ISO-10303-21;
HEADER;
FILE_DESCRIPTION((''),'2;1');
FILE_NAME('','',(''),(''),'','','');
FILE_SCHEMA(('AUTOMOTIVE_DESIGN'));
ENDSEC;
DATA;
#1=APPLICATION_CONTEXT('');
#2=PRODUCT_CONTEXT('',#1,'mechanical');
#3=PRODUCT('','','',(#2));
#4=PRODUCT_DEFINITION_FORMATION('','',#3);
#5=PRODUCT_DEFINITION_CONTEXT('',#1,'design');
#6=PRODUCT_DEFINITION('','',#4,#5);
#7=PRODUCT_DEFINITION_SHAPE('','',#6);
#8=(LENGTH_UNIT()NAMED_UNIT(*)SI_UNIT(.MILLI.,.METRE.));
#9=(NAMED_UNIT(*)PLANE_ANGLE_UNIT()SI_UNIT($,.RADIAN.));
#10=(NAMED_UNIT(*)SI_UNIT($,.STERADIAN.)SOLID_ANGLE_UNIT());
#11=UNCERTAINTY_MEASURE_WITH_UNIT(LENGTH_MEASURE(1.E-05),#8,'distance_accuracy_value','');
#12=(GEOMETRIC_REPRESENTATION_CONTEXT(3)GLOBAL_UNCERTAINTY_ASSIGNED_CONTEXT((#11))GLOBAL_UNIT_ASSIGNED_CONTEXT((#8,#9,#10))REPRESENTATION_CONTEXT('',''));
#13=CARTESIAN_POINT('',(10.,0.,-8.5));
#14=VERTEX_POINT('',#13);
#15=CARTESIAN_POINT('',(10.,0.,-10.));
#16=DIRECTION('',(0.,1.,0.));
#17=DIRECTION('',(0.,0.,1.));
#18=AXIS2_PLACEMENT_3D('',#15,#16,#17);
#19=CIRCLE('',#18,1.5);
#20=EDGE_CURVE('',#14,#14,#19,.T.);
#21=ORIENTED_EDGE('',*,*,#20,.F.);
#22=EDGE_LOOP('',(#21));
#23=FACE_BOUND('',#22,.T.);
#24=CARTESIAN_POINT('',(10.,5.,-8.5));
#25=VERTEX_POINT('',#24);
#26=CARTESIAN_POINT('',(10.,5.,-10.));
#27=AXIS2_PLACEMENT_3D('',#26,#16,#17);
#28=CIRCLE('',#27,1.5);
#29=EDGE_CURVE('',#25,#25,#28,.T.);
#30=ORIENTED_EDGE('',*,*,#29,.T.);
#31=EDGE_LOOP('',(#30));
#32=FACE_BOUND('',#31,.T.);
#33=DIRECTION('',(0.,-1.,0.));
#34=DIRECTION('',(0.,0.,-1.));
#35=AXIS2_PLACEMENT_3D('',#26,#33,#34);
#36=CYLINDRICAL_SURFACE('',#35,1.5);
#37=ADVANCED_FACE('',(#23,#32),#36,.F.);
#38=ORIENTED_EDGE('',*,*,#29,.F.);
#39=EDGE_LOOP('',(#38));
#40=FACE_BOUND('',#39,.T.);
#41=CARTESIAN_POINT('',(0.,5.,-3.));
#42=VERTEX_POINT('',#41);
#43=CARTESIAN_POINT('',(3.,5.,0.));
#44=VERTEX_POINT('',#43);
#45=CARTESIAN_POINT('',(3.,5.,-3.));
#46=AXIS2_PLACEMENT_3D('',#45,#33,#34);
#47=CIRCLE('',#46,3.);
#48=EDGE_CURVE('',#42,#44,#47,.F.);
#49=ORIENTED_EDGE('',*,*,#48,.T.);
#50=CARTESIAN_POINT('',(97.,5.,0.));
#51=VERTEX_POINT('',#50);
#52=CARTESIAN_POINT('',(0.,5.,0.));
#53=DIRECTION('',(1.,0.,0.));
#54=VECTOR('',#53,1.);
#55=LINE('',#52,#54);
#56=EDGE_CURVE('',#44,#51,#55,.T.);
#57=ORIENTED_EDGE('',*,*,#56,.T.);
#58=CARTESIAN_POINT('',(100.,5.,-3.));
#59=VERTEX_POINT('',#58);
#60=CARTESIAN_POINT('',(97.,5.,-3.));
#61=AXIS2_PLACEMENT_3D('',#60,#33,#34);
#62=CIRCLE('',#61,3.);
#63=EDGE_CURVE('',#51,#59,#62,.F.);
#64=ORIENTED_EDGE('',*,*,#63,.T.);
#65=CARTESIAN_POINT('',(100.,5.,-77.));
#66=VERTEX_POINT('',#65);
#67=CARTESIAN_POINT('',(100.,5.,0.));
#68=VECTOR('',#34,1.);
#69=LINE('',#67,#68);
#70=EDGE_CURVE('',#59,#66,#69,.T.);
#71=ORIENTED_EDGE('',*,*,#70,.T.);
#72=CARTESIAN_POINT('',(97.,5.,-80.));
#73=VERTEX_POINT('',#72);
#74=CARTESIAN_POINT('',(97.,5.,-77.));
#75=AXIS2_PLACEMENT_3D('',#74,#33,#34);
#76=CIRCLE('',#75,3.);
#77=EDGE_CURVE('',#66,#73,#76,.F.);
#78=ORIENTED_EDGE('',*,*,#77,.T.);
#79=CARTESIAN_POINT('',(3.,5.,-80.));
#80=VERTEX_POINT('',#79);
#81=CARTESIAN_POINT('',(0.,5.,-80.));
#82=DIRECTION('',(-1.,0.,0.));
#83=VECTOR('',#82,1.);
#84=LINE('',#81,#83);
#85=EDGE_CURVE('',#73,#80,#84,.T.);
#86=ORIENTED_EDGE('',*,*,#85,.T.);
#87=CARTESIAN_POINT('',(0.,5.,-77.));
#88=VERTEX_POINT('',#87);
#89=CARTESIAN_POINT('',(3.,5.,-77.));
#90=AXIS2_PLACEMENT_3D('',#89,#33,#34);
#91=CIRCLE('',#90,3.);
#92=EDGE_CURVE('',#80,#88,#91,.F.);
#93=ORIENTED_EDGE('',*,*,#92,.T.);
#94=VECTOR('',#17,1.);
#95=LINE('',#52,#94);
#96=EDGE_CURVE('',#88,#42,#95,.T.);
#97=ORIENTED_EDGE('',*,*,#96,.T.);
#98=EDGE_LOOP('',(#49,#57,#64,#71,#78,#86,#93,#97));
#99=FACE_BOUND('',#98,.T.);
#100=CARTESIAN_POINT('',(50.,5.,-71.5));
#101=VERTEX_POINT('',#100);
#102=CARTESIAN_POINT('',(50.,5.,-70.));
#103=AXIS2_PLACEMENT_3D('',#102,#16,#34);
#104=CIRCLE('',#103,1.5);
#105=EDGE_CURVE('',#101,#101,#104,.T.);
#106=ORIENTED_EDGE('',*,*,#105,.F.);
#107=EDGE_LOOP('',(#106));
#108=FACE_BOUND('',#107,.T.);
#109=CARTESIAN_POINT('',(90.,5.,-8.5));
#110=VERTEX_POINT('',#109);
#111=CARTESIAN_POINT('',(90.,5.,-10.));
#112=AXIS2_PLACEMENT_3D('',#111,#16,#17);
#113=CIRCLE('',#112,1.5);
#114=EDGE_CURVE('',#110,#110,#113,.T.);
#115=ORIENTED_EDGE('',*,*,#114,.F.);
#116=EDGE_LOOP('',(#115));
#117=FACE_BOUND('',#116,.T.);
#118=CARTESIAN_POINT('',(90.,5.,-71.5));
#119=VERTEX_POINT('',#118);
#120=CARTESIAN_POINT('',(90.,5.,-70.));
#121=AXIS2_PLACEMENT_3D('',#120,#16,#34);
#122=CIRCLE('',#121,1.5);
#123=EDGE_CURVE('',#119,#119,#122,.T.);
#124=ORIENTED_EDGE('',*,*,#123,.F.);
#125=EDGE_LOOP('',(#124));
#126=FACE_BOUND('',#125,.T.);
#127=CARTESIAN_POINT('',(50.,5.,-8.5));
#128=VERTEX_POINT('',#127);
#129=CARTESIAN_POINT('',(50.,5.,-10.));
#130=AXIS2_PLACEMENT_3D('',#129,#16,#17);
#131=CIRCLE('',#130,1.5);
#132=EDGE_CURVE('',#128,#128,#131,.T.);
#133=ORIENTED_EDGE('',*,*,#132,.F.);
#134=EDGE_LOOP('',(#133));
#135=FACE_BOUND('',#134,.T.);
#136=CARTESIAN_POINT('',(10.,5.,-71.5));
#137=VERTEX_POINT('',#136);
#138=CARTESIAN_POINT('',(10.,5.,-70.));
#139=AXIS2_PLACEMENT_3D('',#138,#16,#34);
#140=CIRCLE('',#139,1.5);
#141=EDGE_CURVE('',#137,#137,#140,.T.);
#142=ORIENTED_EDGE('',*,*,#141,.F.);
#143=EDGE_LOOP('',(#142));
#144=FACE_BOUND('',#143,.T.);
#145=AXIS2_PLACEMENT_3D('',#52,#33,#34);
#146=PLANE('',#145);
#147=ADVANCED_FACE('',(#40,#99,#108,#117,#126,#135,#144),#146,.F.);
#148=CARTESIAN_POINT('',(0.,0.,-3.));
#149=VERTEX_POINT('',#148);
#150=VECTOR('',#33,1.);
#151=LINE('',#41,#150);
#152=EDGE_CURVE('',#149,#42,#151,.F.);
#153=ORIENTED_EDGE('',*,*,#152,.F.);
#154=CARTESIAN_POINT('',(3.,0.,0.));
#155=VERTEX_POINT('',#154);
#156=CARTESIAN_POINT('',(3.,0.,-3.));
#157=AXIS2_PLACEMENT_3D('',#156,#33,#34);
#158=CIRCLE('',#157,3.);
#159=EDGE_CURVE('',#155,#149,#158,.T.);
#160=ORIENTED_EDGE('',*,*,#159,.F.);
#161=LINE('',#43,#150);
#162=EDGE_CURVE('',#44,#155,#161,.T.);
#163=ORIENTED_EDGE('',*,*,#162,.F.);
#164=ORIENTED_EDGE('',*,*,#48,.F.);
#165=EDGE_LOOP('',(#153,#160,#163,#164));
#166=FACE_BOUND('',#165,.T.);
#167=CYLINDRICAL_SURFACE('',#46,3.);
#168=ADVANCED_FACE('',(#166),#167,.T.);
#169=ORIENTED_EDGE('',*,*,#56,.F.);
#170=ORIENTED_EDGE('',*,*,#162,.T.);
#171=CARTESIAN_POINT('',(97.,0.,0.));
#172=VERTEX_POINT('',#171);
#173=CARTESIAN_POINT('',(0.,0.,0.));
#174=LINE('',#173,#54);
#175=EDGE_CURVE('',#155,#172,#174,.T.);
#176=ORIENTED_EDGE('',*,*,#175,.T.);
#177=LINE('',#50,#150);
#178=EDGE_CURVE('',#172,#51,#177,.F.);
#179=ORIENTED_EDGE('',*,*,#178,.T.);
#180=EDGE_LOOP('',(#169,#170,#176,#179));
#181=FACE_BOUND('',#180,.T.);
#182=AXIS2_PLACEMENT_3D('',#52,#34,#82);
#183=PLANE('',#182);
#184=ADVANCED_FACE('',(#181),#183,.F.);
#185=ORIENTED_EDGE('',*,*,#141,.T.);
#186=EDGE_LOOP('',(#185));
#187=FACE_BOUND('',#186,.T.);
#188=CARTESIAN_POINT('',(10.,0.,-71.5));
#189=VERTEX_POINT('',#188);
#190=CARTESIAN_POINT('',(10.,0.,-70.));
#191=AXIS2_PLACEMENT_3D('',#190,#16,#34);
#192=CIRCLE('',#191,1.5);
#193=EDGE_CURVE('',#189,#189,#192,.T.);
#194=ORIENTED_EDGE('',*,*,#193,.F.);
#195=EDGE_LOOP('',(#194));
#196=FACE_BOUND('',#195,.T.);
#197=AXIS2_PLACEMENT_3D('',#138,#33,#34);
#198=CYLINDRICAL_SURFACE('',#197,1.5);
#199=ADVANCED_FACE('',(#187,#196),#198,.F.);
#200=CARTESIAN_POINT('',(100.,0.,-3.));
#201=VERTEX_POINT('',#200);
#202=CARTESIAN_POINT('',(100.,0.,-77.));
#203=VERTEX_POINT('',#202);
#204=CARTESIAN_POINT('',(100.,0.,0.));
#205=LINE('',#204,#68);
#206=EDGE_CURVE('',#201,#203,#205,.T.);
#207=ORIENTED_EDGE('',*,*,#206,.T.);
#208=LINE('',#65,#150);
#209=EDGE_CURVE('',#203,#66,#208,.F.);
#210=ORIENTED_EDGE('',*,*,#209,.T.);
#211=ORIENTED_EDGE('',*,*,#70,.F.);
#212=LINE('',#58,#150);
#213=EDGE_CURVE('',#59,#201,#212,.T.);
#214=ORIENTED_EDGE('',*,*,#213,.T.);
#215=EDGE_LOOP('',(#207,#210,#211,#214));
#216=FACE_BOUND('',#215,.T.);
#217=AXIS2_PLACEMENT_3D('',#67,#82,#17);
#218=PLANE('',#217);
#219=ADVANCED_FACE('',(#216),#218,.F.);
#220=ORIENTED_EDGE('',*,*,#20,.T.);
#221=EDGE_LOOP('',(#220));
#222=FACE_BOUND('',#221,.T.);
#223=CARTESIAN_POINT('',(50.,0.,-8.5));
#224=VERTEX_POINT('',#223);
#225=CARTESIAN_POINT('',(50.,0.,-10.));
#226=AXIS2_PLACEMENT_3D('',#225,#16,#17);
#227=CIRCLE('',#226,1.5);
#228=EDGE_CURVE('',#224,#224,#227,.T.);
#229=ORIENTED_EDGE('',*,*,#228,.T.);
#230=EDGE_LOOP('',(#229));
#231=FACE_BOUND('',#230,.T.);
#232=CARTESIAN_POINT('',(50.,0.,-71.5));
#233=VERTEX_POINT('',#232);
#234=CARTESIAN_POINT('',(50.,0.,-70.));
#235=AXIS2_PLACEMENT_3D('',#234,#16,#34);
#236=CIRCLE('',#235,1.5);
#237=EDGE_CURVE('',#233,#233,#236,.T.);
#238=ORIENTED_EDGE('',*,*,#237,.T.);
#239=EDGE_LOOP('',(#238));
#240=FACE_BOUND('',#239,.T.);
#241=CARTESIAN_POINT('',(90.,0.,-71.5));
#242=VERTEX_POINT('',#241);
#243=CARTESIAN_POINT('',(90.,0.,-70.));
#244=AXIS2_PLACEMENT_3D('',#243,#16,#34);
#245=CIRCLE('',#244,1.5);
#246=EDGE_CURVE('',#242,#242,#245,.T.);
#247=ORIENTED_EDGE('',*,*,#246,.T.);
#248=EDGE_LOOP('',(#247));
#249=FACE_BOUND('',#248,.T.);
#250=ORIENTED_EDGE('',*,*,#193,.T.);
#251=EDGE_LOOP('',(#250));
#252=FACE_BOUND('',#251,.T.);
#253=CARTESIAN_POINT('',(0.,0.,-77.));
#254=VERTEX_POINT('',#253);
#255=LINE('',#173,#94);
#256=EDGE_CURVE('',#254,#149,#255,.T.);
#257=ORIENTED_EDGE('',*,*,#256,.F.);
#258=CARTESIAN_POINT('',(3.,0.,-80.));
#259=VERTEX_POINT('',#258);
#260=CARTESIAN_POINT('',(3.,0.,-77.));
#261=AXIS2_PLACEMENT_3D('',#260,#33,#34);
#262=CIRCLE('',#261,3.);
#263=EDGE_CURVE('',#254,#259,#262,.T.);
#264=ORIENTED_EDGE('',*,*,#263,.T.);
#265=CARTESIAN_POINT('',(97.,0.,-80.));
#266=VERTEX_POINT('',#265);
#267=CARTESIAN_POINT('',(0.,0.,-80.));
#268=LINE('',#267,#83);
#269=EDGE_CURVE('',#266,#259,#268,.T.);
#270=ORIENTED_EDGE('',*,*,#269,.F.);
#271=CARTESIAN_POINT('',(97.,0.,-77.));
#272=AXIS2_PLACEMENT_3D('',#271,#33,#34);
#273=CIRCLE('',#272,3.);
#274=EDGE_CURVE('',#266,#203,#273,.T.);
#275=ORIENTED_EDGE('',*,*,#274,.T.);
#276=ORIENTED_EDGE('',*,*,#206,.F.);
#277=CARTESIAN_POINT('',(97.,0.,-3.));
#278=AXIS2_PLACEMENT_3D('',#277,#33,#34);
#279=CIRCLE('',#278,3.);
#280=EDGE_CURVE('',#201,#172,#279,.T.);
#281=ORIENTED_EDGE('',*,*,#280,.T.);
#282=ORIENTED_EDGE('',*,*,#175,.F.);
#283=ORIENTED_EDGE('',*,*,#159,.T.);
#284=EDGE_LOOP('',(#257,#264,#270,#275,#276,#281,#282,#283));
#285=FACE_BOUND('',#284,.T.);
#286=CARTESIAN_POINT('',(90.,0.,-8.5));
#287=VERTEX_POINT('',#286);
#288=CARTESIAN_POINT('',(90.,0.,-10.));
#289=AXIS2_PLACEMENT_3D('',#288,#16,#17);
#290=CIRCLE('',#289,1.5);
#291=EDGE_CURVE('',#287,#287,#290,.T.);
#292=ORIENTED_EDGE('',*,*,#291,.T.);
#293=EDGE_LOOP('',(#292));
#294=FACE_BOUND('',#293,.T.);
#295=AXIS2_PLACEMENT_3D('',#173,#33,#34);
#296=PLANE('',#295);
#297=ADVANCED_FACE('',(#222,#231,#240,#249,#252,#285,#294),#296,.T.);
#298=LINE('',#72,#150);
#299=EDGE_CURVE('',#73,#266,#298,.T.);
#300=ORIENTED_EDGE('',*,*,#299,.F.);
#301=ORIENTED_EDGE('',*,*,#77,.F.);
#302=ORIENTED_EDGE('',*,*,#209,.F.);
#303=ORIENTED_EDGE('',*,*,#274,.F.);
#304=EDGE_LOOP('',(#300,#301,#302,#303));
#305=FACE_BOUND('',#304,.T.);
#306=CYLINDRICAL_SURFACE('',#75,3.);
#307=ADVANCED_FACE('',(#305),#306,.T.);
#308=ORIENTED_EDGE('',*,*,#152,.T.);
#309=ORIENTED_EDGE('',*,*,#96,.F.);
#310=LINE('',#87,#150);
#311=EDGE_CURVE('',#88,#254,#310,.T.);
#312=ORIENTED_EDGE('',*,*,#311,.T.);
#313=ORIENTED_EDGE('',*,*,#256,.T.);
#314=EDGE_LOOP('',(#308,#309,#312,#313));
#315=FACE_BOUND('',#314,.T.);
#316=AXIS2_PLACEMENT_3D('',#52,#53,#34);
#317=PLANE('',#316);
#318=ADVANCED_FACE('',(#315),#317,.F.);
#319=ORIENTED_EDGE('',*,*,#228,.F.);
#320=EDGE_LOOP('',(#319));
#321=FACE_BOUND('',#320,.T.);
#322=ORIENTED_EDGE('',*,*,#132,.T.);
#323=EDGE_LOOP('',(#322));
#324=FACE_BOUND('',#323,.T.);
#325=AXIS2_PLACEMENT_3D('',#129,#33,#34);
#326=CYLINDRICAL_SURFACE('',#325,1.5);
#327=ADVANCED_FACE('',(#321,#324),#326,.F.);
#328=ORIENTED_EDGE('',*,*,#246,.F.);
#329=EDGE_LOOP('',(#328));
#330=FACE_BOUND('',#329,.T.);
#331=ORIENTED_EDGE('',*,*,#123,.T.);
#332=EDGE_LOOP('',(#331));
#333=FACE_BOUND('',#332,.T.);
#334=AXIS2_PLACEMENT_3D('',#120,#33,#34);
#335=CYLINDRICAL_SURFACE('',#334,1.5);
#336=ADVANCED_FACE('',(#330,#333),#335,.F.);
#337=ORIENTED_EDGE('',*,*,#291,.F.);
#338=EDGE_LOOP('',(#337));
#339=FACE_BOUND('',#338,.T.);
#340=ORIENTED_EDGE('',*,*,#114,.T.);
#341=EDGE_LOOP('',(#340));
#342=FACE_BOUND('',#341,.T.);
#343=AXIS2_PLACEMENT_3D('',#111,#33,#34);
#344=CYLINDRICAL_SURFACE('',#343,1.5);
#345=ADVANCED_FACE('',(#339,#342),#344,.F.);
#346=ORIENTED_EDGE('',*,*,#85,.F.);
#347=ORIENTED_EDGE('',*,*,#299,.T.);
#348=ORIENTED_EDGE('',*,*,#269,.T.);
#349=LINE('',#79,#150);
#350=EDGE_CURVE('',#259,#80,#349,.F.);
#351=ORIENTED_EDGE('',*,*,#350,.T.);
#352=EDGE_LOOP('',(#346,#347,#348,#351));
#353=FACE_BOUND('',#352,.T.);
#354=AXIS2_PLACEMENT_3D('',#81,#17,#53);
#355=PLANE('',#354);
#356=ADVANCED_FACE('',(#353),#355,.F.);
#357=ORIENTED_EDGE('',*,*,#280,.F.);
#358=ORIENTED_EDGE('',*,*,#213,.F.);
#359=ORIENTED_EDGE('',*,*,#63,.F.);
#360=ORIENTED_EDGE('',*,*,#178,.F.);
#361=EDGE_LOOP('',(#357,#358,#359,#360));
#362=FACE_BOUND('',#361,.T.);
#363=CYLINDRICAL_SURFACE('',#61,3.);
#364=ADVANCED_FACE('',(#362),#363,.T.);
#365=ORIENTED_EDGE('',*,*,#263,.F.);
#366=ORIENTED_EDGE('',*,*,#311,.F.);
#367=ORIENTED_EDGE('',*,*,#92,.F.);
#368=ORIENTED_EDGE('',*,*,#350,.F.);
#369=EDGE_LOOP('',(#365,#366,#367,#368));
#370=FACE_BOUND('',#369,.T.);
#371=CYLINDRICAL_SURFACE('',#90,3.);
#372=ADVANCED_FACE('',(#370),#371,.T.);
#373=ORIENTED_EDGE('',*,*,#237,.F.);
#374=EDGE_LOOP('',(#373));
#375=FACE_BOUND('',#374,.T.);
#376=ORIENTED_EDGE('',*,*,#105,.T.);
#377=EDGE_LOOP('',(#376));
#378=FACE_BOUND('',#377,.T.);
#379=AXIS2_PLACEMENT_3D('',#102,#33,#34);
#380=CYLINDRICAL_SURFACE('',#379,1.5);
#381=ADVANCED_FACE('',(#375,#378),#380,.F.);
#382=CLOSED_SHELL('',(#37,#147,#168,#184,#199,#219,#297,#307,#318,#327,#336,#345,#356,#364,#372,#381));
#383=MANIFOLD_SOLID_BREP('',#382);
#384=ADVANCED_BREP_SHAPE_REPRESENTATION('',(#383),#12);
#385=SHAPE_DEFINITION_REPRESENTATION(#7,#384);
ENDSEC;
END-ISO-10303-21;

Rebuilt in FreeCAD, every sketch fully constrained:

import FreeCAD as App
import Part
import Sketcher
from FreeCAD import Vector
Q = App.Units.Quantity


def edges_at(feature, points):
    """Names of the edges that pass closest to the given points."""
    edges = feature.Shape.Edges
    near = lambda p: min(range(len(edges)), key=lambda i: edges[i].distToShape(Part.Vertex(*p))[0])
    return sorted({f"Edge{near(p) + 1}" for p in points})

doc = App.newDocument("Part")
body = doc.addObject("PartDesign::Body", "Body")

# Sketch on XZ plane
sketch1 = body.newObject("Sketcher::SketchObject", "Sketch")
sketch1.AttachmentSupport = (doc.getObject("XZ_Plane"), [""])
sketch1.MapMode = "FlatFace"
sketch1.addGeometry([
    Part.LineSegment(Vector(0, -80, 0), Vector(0, 0, 0)),  # 0
    Part.LineSegment(Vector(0, 0, 0), Vector(100, 0, 0)),  # 1
    Part.LineSegment(Vector(100, 0, 0), Vector(100, -80, 0)),  # 2
    Part.LineSegment(Vector(100, -80, 0), Vector(0, -80, 0)),  # 3
    Part.Circle(Vector(10, -10, 0), Vector(0, 0, 1), 1.5),  # 4
    Part.Circle(Vector(50, -10, 0), Vector(0, 0, 1), 1.5),  # 5
    Part.Circle(Vector(90, -10, 0), Vector(0, 0, 1), 1.5),  # 6
    Part.Circle(Vector(10, -70, 0), Vector(0, 0, 1), 1.5),  # 7
    Part.Circle(Vector(50, -70, 0), Vector(0, 0, 1), 1.5),  # 8
    Part.Circle(Vector(90, -70, 0), Vector(0, 0, 1), 1.5),  # 9
], False)
sketch1.addConstraint([
    Sketcher.Constraint("Coincident", 0, 2, 1, 1),
    Sketcher.Constraint("Coincident", 1, 2, 2, 1),
    Sketcher.Constraint("Coincident", 2, 2, 3, 1),
    Sketcher.Constraint("Coincident", 3, 2, 0, 1),
    Sketcher.Constraint("Vertical", 0),
    Sketcher.Constraint("Horizontal", 1),
    Sketcher.Constraint("Vertical", 2),
    Sketcher.Constraint("Horizontal", 3),
    Sketcher.Constraint("Coincident", 0, 2, -1, 1),
    Sketcher.Constraint("Equal", 4, 5),
    Sketcher.Constraint("Equal", 5, 6),
    Sketcher.Constraint("Equal", 6, 7),
    Sketcher.Constraint("Equal", 7, 8),
    Sketcher.Constraint("Equal", 8, 9),
    Sketcher.Constraint("Horizontal", 4, 3, 5, 3),
    Sketcher.Constraint("Horizontal", 5, 3, 6, 3),
    Sketcher.Constraint("Horizontal", 7, 3, 8, 3),
    Sketcher.Constraint("Horizontal", 8, 3, 9, 3),
    Sketcher.Constraint("Vertical", 4, 3, 7, 3),
    Sketcher.Constraint("Vertical", 5, 3, 8, 3),
    Sketcher.Constraint("Vertical", 6, 3, 9, 3),
    Sketcher.Constraint("Diameter", 4, Q("3 mm")),
    Sketcher.Constraint("DistanceX", 1, 1, 1, 2, Q("100 mm")),
    Sketcher.Constraint("DistanceY", 0, 1, 0, 2, Q("80 mm")),
    Sketcher.Constraint("DistanceX", -1, 1, 4, 3, Q("10 mm")),
    Sketcher.Constraint("DistanceY", 4, 3, -1, 1, Q("10 mm")),
    Sketcher.Constraint("DistanceX", -1, 1, 5, 3, Q("50 mm")),
    Sketcher.Constraint("DistanceX", -1, 1, 6, 3, Q("90 mm")),
    Sketcher.Constraint("DistanceY", 7, 3, -1, 1, Q("70 mm")),
])
pad1 = body.newObject("PartDesign::Pad", "Pad")
pad1.Profile = sketch1
pad1.Length = 5
pad1.Reversed = True
doc.recompute()

fillet = body.newObject("PartDesign::Fillet", "Fillet")
fillet.Base = (pad1, edges_at(pad1, [
    (0, 2.5, -80),
    (100, 2.5, -80),
    (100, 2.5, 0),
    (0, 2.5, 0),
]))
fillet.Radius = 3

doc.recompute()
